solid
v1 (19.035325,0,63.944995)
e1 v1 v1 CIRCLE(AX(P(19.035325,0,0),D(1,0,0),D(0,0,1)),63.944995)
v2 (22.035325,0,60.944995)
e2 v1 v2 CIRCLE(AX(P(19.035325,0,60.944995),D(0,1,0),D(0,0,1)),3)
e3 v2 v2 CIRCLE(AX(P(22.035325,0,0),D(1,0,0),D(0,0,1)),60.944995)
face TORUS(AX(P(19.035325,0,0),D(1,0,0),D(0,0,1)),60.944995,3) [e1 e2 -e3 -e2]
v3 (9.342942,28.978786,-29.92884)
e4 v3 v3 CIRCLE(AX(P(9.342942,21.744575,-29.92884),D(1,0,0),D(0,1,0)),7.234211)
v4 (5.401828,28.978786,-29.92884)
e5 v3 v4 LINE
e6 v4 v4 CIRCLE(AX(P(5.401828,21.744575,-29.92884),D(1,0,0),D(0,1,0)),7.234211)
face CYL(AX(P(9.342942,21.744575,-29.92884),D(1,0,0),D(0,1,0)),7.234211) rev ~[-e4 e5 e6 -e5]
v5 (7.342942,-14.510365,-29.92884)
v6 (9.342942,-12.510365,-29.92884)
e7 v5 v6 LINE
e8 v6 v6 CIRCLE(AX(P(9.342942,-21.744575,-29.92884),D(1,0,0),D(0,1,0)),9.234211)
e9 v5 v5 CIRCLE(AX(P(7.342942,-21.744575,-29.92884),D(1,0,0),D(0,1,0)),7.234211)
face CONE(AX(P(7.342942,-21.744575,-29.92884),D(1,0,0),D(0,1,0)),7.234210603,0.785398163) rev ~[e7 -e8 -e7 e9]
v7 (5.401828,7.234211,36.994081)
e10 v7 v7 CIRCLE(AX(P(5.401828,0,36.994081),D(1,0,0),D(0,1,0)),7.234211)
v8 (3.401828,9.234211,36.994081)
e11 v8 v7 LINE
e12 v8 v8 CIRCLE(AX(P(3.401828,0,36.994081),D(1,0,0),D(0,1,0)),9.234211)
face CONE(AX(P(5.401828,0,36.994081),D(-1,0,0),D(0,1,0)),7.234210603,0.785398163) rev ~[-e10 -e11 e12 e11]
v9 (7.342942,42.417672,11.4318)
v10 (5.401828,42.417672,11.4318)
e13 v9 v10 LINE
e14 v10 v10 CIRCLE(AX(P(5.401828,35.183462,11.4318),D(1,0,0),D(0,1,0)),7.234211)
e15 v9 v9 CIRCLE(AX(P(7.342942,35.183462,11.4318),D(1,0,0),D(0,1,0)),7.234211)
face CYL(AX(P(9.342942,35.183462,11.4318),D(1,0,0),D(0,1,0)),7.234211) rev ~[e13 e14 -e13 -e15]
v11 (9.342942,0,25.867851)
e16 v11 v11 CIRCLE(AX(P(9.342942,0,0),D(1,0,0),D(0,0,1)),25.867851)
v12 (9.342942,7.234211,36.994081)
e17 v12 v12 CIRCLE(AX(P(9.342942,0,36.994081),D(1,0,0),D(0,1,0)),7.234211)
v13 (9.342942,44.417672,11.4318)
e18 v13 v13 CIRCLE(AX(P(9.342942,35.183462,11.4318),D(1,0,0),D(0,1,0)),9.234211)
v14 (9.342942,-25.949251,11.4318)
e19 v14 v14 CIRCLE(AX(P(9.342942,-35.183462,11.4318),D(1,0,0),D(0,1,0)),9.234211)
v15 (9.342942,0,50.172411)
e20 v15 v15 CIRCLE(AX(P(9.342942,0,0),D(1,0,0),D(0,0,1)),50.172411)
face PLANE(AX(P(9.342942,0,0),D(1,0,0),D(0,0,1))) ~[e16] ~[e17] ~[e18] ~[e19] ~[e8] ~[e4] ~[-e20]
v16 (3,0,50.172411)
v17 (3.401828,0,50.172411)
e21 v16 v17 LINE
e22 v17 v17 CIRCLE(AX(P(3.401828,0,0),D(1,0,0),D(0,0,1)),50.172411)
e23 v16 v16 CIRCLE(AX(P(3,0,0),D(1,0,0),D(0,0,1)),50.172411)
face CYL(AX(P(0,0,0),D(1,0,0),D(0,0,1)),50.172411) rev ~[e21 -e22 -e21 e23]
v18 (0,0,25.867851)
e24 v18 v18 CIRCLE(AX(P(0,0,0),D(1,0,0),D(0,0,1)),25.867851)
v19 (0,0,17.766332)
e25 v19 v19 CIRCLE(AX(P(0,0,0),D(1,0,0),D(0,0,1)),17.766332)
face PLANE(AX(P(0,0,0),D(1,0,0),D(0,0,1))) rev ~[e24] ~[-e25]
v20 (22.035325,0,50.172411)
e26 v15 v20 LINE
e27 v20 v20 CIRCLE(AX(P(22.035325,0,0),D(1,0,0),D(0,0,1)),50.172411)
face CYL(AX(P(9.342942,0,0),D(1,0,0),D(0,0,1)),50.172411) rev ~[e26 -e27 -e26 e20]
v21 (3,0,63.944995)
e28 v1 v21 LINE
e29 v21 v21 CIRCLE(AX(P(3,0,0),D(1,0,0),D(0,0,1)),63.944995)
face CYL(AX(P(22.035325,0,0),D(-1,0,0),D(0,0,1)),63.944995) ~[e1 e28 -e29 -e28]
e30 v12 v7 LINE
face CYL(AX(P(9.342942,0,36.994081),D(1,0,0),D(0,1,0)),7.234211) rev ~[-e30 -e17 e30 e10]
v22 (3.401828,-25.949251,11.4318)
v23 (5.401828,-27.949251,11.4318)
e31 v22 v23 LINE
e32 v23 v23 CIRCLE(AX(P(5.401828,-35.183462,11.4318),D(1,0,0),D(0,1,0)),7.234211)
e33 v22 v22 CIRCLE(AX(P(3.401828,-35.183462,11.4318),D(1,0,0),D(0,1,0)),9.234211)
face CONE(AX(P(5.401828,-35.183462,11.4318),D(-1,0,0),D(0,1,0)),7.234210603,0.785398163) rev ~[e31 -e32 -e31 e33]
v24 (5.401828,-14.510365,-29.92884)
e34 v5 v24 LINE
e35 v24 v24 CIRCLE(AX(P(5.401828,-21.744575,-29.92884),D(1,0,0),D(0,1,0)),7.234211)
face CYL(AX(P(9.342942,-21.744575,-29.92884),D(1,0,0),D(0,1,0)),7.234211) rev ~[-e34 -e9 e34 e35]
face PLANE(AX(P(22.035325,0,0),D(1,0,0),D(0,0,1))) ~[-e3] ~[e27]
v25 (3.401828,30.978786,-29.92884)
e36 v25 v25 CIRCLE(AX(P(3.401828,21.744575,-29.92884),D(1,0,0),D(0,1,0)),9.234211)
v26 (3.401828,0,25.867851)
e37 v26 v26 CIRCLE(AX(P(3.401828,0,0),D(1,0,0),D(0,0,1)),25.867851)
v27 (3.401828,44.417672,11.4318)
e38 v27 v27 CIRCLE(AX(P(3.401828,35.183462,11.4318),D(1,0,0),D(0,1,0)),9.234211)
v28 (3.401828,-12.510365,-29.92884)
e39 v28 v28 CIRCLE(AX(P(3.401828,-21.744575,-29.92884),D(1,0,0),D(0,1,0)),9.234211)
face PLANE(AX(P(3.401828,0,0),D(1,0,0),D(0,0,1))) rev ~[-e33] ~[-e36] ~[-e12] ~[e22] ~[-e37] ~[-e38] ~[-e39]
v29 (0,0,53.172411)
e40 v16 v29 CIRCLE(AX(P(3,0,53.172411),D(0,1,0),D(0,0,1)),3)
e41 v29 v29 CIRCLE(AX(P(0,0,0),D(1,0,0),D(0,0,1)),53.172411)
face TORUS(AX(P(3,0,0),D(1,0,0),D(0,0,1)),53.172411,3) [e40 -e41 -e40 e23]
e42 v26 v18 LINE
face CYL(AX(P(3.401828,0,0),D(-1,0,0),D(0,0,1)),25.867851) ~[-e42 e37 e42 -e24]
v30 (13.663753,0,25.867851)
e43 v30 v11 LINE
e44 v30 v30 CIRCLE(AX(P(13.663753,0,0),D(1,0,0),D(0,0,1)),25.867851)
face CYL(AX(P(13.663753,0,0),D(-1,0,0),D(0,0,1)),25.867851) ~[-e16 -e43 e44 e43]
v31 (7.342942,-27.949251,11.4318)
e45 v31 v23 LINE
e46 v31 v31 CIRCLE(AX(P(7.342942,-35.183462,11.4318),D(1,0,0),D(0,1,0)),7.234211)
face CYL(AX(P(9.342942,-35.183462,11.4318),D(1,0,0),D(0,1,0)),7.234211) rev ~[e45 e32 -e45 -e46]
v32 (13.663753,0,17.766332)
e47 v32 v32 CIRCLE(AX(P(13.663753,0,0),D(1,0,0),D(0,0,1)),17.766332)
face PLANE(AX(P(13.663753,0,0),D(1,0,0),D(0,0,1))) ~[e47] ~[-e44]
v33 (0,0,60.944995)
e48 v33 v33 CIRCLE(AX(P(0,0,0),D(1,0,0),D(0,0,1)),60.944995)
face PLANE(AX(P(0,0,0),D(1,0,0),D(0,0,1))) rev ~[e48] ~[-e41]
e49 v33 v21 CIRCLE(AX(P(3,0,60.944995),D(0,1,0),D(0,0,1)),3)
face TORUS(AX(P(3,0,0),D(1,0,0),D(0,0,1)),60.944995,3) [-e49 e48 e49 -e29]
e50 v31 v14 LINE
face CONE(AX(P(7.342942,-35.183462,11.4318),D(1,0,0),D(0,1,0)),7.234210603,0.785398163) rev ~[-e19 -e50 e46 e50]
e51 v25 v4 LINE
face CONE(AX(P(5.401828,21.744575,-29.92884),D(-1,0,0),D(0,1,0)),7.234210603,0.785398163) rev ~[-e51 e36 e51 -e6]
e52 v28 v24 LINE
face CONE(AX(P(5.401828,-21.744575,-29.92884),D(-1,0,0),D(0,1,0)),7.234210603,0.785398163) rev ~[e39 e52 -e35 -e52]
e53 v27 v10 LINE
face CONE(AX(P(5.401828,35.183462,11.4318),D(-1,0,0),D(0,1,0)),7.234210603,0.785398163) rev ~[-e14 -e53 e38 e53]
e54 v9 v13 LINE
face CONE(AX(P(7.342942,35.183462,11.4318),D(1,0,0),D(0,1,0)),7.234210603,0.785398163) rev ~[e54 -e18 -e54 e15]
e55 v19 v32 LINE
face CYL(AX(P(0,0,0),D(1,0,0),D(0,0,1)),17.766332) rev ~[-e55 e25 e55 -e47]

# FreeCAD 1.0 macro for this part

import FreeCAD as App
import Part
import Sketcher

V = App.Vector


def edges_at(feature, points):
    """Names of the edges that pass closest to the given points."""
    edges = feature.Shape.Edges
    near = lambda p: min(range(len(edges)), key=lambda i: edges[i].distToShape(Part.Vertex(*p))[0])
    return sorted({f"Edge{near(p) + 1}" for p in points})

doc = App.newDocument("Part")
body = doc.addObject("PartDesign::Body", "Body")

sketch1 = body.newObject("Sketcher::SketchObject", "Sketch")
sketch1.AttachmentSupport = (doc.getObject("XZ_Plane"), [""])
sketch1.MapMode = "FlatFace"
sketch1.addGeometry(Part.LineSegment(V(0, 25.867851, 0), V(0, 17.766332, 0)), False)
sketch1.addGeometry(Part.LineSegment(V(0, 17.766332, 0), V(13.663753, 17.766332, 0)), False)
sketch1.addGeometry(Part.LineSegment(V(13.663753, 17.766332, 0), V(13.663753, 25.867851, 0)), False)
sketch1.addGeometry(Part.LineSegment(V(13.663753, 25.867851, 0), V(9.342942, 25.867851, 0)), False)
sketch1.addGeometry(Part.LineSegment(V(9.342942, 25.867851, 0), V(9.342942, 50.172411, 0)), False)
sketch1.addGeometry(Part.LineSegment(V(9.342942, 50.172411, 0), V(22.035325, 50.172411, 0)), False)
sketch1.addGeometry(Part.LineSegment(V(22.035325, 50.172411, 0), V(22.035325, 63.944995, 0)), False)
sketch1.addGeometry(Part.LineSegment(V(22.035325, 63.944995, 0), V(0, 63.944995, 0)), False)
sketch1.addGeometry(Part.LineSegment(V(0, 63.944995, 0), V(0, 50.172411, 0)), False)
sketch1.addGeometry(Part.LineSegment(V(0, 50.172411, 0), V(3.401828, 50.172411, 0)), False)
sketch1.addGeometry(Part.LineSegment(V(3.401828, 50.172411, 0), V(3.401828, 25.867851, 0)), False)
sketch1.addGeometry(Part.LineSegment(V(3.401828, 25.867851, 0), V(0, 25.867851, 0)), False)
sketch1.addConstraint(Sketcher.Constraint("Coincident", 0, 2, 1, 1))
sketch1.addConstraint(Sketcher.Constraint("Coincident", 1, 2, 2, 1))
sketch1.addConstraint(Sketcher.Constraint("Coincident", 2, 2, 3, 1))
sketch1.addConstraint(Sketcher.Constraint("Coincident", 3, 2, 4, 1))
sketch1.addConstraint(Sketcher.Constraint("Coincident", 4, 2, 5, 1))
sketch1.addConstraint(Sketcher.Constraint("Coincident", 5, 2, 6, 1))
sketch1.addConstraint(Sketcher.Constraint("Coincident", 6, 2, 7, 1))
sketch1.addConstraint(Sketcher.Constraint("Coincident", 7, 2, 8, 1))
sketch1.addConstraint(Sketcher.Constraint("Coincident", 8, 2, 9, 1))
sketch1.addConstraint(Sketcher.Constraint("Coincident", 9, 2, 10, 1))
sketch1.addConstraint(Sketcher.Constraint("Coincident", 10, 2, 11, 1))
sketch1.addConstraint(Sketcher.Constraint("Coincident", 11, 2, 0, 1))
sketch1.addConstraint(Sketcher.Constraint("Vertical", 0))
sketch1.addConstraint(Sketcher.Constraint("Horizontal", 1))
sketch1.addConstraint(Sketcher.Constraint("Vertical", 2))
sketch1.addConstraint(Sketcher.Constraint("Horizontal", 3))
sketch1.addConstraint(Sketcher.Constraint("Vertical", 4))
sketch1.addConstraint(Sketcher.Constraint("Horizontal", 5))
sketch1.addConstraint(Sketcher.Constraint("Vertical", 6))
sketch1.addConstraint(Sketcher.Constraint("Horizontal", 7))
sketch1.addConstraint(Sketcher.Constraint("Vertical", 8))
sketch1.addConstraint(Sketcher.Constraint("Horizontal", 9))
sketch1.addConstraint(Sketcher.Constraint("Vertical", 10))
sketch1.addConstraint(Sketcher.Constraint("Horizontal", 11))
sketch1.addConstraint(Sketcher.Constraint("PointOnObject", 0, 2, -2))
sketch1.addConstraint(Sketcher.Constraint("PointOnObject", 7, 2, -2))
sketch1.addConstraint(Sketcher.Constraint("Horizontal", 5, 2, 8, 2))
sketch1.addConstraint(Sketcher.Constraint("Horizontal", 3, 2, 10, 2))
sketch1.addConstraint(Sketcher.Constraint("DistanceX", 3, 2, 3, 1, 4.320811))
sketch1.addConstraint(Sketcher.Constraint("DistanceY", 0, 2, 0, 1, 8.101519))
sketch1.addConstraint(Sketcher.Constraint("DistanceY", 4, 1, 4, 2, 24.304559))
sketch1.addConstraint(Sketcher.Constraint("DistanceX", 1, 1, 1, 2, 13.663753))
sketch1.addConstraint(Sketcher.Constraint("DistanceX", 5, 1, 5, 2, 12.692383))
sketch1.addConstraint(Sketcher.Constraint("DistanceX", 9, 1, 9, 2, 3.401828))
sketch1.addConstraint(Sketcher.Constraint("DistanceY", 6, 1, 6, 2, 13.772584))
sketch1.addConstraint(Sketcher.Constraint("DistanceY", -1, 1, 2, 2, 25.867851))
revolution = body.newObject("PartDesign::Revolution", "Revolution")
revolution.Profile = sketch1
revolution.ReferenceAxis = (sketch1, ["H_Axis"])
revolution.Angle = 360

sketch2 = body.newObject("Sketcher::SketchObject", "Sketch001")
sketch2.AttachmentSupport = (doc.getObject("YZ_Plane"), [""])
sketch2.MapMode = "FlatFace"
sketch2.AttachmentOffset = App.Placement(V(0, 0, 9.342942), App.Rotation())
sketch2.addGeometry(Part.Circle(V(0, 36.994081, 0), V(0, 0, 1), 7.234211), False)
sketch2.addGeometry(Part.Circle(V(-21.744575, -29.92884, 0), V(0, 0, 1), 7.234211), False)
sketch2.addGeometry(Part.Circle(V(21.744575, -29.92884, 0), V(0, 0, 1), 7.234211), False)
sketch2.addGeometry(Part.Circle(V(35.183462, 11.4318, 0), V(0, 0, 1), 7.234211), False)
sketch2.addGeometry(Part.Circle(V(-35.183462, 11.4318, 0), V(0, 0, 1), 7.234211), False)
sketch2.addConstraint(Sketcher.Constraint("Equal", 0, 1))
sketch2.addConstraint(Sketcher.Constraint("Equal", 1, 2))
sketch2.addConstraint(Sketcher.Constraint("Equal", 2, 3))
sketch2.addConstraint(Sketcher.Constraint("Equal", 3, 4))
sketch2.addConstraint(Sketcher.Constraint("Symmetric", 1, 3, 2, 3, -2))
sketch2.addConstraint(Sketcher.Constraint("Symmetric", 3, 3, 4, 3, -2))
sketch2.addConstraint(Sketcher.Constraint("PointOnObject", 0, 3, -2))
sketch2.addConstraint(Sketcher.Constraint("Diameter", 0, 14.468421))
sketch2.addConstraint(Sketcher.Constraint("DistanceY", -1, 1, 3, 3, 11.4318))
sketch2.addConstraint(Sketcher.Constraint("DistanceY", -1, 1, 0, 3, 36.994081))
sketch2.addConstraint(Sketcher.Constraint("DistanceY", 1, 3, -1, 1, 29.92884))
sketch2.addConstraint(Sketcher.Constraint("DistanceX", -1, 1, 3, 3, 35.183462))
sketch2.addConstraint(Sketcher.Constraint("DistanceX", 1, 3, 2, 3, 43.48915))
pocket1 = body.newObject("PartDesign::Pocket", "Pocket")
pocket1.Profile = sketch2
pocket1.Length = 25
doc.recompute()

fillet = body.newObject("PartDesign::Fillet", "Fillet")
fillet.Base = (pocket1, edges_at(pocket1, [(22.035, 0, -63.945), (0, 0, -63.945), (0, 0, -50.172)]))
fillet.Radius = 3
doc.recompute()

chamfer = body.newObject("PartDesign::Chamfer", "Chamfer")
chamfer.Base = (fillet, edges_at(fillet, [
    (3.402, -7.234, 36.994),
    (9.343, 27.949, 11.432),
    (6.372, 42.418, 11.432),
    (3.402, 27.949, 11.432),
    (9.343, -42.418, 11.432),
    (6.372, -27.949, 11.432),
    (3.402, -42.418, 11.432),
    (9.343, -28.979, -29.929),
    (6.372, -14.51, -29.929),
    (3.402, -28.979, -29.929),
    (3.402, 14.51, -29.929),
]))
chamfer.Size = 2

doc.recompute()
